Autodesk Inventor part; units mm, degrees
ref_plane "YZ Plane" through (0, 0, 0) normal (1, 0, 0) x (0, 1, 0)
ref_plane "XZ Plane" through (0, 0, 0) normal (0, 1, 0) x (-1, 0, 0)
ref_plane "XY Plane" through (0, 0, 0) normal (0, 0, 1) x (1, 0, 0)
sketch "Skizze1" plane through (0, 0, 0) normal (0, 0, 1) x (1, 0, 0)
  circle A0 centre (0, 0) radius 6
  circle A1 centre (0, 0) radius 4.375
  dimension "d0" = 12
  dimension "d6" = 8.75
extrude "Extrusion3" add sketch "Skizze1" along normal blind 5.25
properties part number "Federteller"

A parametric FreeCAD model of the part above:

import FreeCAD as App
import Part
import Sketcher
from FreeCAD import Vector
Q = App.Units.Quantity

doc = App.newDocument("Part")
body = doc.addObject("PartDesign::Body", "Body")

# Sketch on XY plane
sketch1 = body.newObject("Sketcher::SketchObject", "Sketch")
sketch1.AttachmentSupport = (doc.getObject("XY_Plane"), [""])
sketch1.MapMode = "FlatFace"
sketch1.addGeometry(Part.Circle(Vector(0, 0, 0), Vector(0, 0, 1), 6), False)
sketch1.addGeometry(Part.Circle(Vector(0, 0, 0), Vector(0, 0, 1), 4.4), False)
sketch1.addConstraint(Sketcher.Constraint("Coincident", 0, 3, -1, 1))
sketch1.addConstraint(Sketcher.Constraint("Coincident", 1, 3, -1, 1))
sketch1.addConstraint(Sketcher.Constraint("Diameter", 0, Q("12 mm")))
sketch1.addConstraint(Sketcher.Constraint("Diameter", 1, Q("8.75 mm")))
pad1 = body.newObject("PartDesign::Pad", "Pad")
pad1.Profile = sketch1
pad1.Length = 5.25

doc.recompute()
